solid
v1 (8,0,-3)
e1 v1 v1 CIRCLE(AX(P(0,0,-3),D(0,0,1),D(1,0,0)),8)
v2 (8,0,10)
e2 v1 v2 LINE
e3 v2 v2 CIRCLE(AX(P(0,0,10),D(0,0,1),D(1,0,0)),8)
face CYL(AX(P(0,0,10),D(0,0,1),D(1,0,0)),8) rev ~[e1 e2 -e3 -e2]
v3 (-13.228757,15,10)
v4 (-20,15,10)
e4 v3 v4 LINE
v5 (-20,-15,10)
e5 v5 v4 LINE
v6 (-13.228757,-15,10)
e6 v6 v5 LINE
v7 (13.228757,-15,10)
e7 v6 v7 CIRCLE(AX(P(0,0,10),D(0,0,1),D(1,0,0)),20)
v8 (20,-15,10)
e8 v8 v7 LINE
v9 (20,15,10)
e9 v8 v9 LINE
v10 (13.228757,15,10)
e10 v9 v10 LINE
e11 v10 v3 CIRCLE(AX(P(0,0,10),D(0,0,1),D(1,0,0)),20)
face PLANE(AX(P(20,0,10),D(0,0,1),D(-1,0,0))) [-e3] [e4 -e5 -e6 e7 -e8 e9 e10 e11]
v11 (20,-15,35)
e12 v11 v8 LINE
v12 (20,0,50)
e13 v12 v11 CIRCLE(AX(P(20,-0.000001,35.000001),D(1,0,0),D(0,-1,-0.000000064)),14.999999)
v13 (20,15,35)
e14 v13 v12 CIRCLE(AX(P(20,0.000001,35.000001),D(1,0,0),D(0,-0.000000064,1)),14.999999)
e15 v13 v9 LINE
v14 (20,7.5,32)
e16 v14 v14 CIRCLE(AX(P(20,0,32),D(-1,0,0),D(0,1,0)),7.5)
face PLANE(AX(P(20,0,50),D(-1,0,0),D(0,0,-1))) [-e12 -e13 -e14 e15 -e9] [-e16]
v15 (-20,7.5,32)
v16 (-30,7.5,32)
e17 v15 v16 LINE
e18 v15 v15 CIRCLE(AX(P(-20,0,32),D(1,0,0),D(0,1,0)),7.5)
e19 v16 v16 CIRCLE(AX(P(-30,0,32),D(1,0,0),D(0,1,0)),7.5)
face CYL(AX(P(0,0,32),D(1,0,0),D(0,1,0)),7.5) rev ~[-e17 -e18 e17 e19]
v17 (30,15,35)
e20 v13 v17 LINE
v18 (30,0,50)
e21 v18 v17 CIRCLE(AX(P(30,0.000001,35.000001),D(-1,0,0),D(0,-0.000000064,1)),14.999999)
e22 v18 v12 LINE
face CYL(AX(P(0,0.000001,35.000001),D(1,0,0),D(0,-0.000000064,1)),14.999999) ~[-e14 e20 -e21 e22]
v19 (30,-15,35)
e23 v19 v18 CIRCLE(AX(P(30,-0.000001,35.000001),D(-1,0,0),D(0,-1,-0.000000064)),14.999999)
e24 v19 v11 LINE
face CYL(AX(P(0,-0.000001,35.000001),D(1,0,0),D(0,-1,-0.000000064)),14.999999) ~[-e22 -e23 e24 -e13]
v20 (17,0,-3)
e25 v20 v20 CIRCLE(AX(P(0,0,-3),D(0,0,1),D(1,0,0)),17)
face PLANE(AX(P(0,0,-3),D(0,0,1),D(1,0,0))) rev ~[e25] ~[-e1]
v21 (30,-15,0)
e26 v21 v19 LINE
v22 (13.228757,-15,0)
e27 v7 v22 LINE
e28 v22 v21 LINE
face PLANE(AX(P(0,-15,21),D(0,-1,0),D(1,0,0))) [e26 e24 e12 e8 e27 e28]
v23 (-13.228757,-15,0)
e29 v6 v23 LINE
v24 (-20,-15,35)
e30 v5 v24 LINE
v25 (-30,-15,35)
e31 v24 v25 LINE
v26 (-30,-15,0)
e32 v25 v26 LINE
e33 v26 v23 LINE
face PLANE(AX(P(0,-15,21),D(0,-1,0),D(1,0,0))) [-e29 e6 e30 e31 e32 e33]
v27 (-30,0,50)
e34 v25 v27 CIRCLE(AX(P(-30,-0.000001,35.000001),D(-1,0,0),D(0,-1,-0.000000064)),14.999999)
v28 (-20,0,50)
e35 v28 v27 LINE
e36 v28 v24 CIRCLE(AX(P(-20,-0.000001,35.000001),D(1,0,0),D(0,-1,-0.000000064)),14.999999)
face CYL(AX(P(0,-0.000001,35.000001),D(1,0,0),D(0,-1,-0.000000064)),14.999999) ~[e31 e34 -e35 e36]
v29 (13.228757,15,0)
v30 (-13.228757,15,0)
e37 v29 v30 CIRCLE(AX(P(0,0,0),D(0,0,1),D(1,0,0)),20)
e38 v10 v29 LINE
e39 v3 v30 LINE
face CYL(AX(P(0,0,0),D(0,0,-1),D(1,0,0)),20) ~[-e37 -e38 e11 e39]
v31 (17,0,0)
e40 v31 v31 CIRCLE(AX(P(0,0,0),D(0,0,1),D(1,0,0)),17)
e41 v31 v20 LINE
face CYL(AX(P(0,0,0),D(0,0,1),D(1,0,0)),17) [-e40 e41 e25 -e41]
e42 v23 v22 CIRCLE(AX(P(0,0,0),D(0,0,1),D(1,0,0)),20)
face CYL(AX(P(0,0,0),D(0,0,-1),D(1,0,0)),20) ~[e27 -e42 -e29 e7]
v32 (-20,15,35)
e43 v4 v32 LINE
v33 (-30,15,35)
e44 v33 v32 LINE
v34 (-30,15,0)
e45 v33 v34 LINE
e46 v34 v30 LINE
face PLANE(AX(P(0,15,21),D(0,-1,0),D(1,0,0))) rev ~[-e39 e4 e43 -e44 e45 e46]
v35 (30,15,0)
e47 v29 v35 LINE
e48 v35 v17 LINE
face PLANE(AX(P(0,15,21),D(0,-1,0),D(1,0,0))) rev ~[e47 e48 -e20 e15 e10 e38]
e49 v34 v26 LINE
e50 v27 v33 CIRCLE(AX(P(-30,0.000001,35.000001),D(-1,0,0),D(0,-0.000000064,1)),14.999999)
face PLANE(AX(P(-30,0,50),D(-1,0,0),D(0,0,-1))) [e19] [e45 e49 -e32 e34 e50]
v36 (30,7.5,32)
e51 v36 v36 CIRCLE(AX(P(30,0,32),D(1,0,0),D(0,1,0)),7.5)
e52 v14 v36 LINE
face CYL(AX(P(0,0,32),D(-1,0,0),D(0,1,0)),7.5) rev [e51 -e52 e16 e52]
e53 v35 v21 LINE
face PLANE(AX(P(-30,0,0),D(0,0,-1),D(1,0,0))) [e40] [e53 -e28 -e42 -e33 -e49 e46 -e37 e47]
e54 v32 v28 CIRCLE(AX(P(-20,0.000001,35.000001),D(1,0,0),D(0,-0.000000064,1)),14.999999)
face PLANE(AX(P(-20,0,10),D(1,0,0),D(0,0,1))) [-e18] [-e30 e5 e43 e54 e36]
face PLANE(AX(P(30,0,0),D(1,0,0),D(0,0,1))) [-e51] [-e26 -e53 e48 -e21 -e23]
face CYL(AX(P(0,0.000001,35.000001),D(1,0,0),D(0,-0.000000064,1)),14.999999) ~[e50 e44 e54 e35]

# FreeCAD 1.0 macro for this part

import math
import FreeCAD as App
import Part
import Sketcher
from FreeCAD import Vector

doc = App.newDocument("Part")
body = doc.addObject("PartDesign::Body", "Body")

sketch1 = doc.addObject("Sketcher::SketchObject", "Sketch")
body.addObject(sketch1)
sketch1.AttachmentSupport = (doc.XY_Plane, [""])
sketch1.MapMode = "FlatFace"
sketch1.addGeometry(Part.Circle(Vector(0, 0, 0), Vector(0, 0, 1), 20), False)
sketch1.addGeometry(Part.Circle(Vector(0, 0, 0), Vector(0, 0, 1), 8), False)
sketch1.addConstraint(Sketcher.Constraint("Coincident", 0, 3, -1, 1))
sketch1.addConstraint(Sketcher.Constraint("Coincident", 1, 3, -1, 1))
sketch1.addConstraint(Sketcher.Constraint("Diameter", 0, 40.0))
sketch1.addConstraint(Sketcher.Constraint("Diameter", 1, 16.0))
pad1 = doc.addObject("PartDesign::Pad", "Pad")
body.addObject(pad1)
pad1.Profile = sketch1
pad1.Length = 10

sketch2 = doc.addObject("Sketcher::SketchObject", "Sketch001")
body.addObject(sketch2)
sketch2.AttachmentSupport = (doc.XY_Plane, [""])
sketch2.MapMode = "FlatFace"
sketch2.addGeometry(Part.Circle(Vector(0, 0, 0), Vector(0, 0, 1), 17), False)
sketch2.addGeometry(Part.Circle(Vector(0, 0, 0), Vector(0, 0, 1), 8), False)
sketch2.addConstraint(Sketcher.Constraint("Coincident", 0, 3, -1, 1))
sketch2.addConstraint(Sketcher.Constraint("Coincident", 1, 3, -1, 1))
sketch2.addConstraint(Sketcher.Constraint("Diameter", 0, 34.0))
sketch2.addConstraint(Sketcher.Constraint("Diameter", 1, 16.0))
pad2 = doc.addObject("PartDesign::Pad", "Pad001")
body.addObject(pad2)
pad2.Profile = sketch2
pad2.Length = 3
pad2.Reversed = True

sketch3 = doc.addObject("Sketcher::SketchObject", "Sketch002")
body.addObject(sketch3)
sketch3.AttachmentSupport = (doc.XZ_Plane, [""])
sketch3.MapMode = "FlatFace"
sketch3.addGeometry(Part.LineSegment(Vector(-30, 50, 0), Vector(-30, 0, 0)), False)
sketch3.addGeometry(Part.LineSegment(Vector(-30, 0, 0), Vector(30, 0, 0)), False)
sketch3.addGeometry(Part.LineSegment(Vector(30, 0, 0), Vector(30, 50, 0)), False)
sketch3.addGeometry(Part.LineSegment(Vector(30, 50, 0), Vector(20, 50, 0)), False)
sketch3.addGeometry(Part.LineSegment(Vector(20, 50, 0), Vector(20, 10, 0)), False)
sketch3.addGeometry(Part.LineSegment(Vector(20, 10, 0), Vector(-20, 10, 0)), False)
sketch3.addGeometry(Part.LineSegment(Vector(-20, 10, 0), Vector(-20, 50, 0)), False)
sketch3.addGeometry(Part.LineSegment(Vector(-20, 50, 0), Vector(-30, 50, 0)), False)
sketch3.addConstraint(Sketcher.Constraint("Coincident", 0, 2, 1, 1))
sketch3.addConstraint(Sketcher.Constraint("Coincident", 1, 2, 2, 1))
sketch3.addConstraint(Sketcher.Constraint("Coincident", 2, 2, 3, 1))
sketch3.addConstraint(Sketcher.Constraint("Coincident", 3, 2, 4, 1))
sketch3.addConstraint(Sketcher.Constraint("Coincident", 4, 2, 5, 1))
sketch3.addConstraint(Sketcher.Constraint("Coincident", 5, 2, 6, 1))
sketch3.addConstraint(Sketcher.Constraint("Coincident", 6, 2, 7, 1))
sketch3.addConstraint(Sketcher.Constraint("Coincident", 7, 2, 0, 1))
sketch3.addConstraint(Sketcher.Constraint("Vertical", 0))
sketch3.addConstraint(Sketcher.Constraint("Horizontal", 1))
sketch3.addConstraint(Sketcher.Constraint("Vertical", 2))
sketch3.addConstraint(Sketcher.Constraint("Horizontal", 3))
sketch3.addConstraint(Sketcher.Constraint("Vertical", 4))
sketch3.addConstraint(Sketcher.Constraint("Horizontal", 5))
sketch3.addConstraint(Sketcher.Constraint("Vertical", 6))
sketch3.addConstraint(Sketcher.Constraint("Horizontal", 7))
sketch3.addConstraint(Sketcher.Constraint("Symmetric", 0, 2, 1, 2, -1, 1))
sketch3.addConstraint(Sketcher.Constraint("Symmetric", 3, 2, 6, 2, -2))
sketch3.addConstraint(Sketcher.Constraint("Equal", 5, 4))
sketch3.addConstraint(Sketcher.Constraint("DistanceX", 1, 1, 1, 2, 60.0))
sketch3.addConstraint(Sketcher.Constraint("DistanceX", 3, 2, 3, 1, 10.0))
sketch3.addConstraint(Sketcher.Constraint("DistanceY", 0, 2, 0, 1, 50.0))
pad3 = doc.addObject("PartDesign::Pad", "Pad002")
body.addObject(pad3)
pad3.Profile = sketch3
pad3.Length = 30
pad3.Midplane = True

sketch4 = doc.addObject("Sketcher::SketchObject", "Sketch003")
body.addObject(sketch4)
sketch4.AttachmentSupport = (doc.XY_Plane, [""])
sketch4.MapMode = "FlatFace"
sketch4.AttachmentOffset = App.Placement(Vector(0, 0, 10), App.Rotation())
sketch4.addGeometry(Part.Circle(Vector(0, 0, 0), Vector(0, 0, 1), 8), False)
sketch4.addConstraint(Sketcher.Constraint("Coincident", 0, 3, -1, 1))
sketch4.addConstraint(Sketcher.Constraint("Diameter", 0, 16.0))
pocket1 = doc.addObject("PartDesign::Pocket", "Pocket")
body.addObject(pocket1)
pocket1.Profile = sketch4
pocket1.Length = 25

sketch5 = doc.addObject("Sketcher::SketchObject", "Sketch004")
body.addObject(sketch5)
sketch5.AttachmentSupport = (doc.YZ_Plane, [""])
sketch5.MapMode = "FlatFace"
sketch5.addGeometry(Part.Circle(Vector(0, 32, 0), Vector(0, 0, 1), 8), False)
sketch5.addGeometry(Part.ArcOfCircle(Part.Circle(Vector(0, 35, 0), Vector(0, 0, 1), 15), math.radians(90), math.radians(180)), False)
sketch5.addGeometry(Part.LineSegment(Vector(0, 50, 0), Vector(-15, 50, 0)), False)
sketch5.addGeometry(Part.LineSegment(Vector(-15, 50, 0), Vector(-15, 35, 0)), False)
sketch5.addGeometry(Part.ArcOfCircle(Part.Circle(Vector(0, 35, 0), Vector(0, 0, 1), 15), math.radians(0), math.radians(90)), False)
sketch5.addGeometry(Part.LineSegment(Vector(15, 35, 0), Vector(15, 50, 0)), False)
sketch5.addGeometry(Part.LineSegment(Vector(15, 50, 0), Vector(0, 50, 0)), False)
sketch5.addConstraint(Sketcher.Constraint("Tangent", 1, 1, 2, 1))
sketch5.addConstraint(Sketcher.Constraint("Coincident", 2, 2, 3, 1))
sketch5.addConstraint(Sketcher.Constraint("Tangent", 3, 2, 1, 2))
sketch5.addConstraint(Sketcher.Constraint("Tangent", 4, 1, 5, 1))
sketch5.addConstraint(Sketcher.Constraint("Coincident", 5, 2, 6, 1))
sketch5.addConstraint(Sketcher.Constraint("Tangent", 6, 2, 4, 2))
sketch5.addConstraint(Sketcher.Constraint("Horizontal", 2))
sketch5.addConstraint(Sketcher.Constraint("Vertical", 3))
sketch5.addConstraint(Sketcher.Constraint("Vertical", 5))
sketch5.addConstraint(Sketcher.Constraint("Horizontal", 6))
sketch5.addConstraint(Sketcher.Constraint("Coincident", 4, 3, 1, 3))
sketch5.addConstraint(Sketcher.Constraint("Equal", 1, 4))
sketch5.addConstraint(Sketcher.Constraint("PointOnObject", 0, 3, -2))
sketch5.addConstraint(Sketcher.Constraint("PointOnObject", 1, 3, -2))
sketch5.addConstraint(Sketcher.Constraint("Diameter", 0, 15.0))
sketch5.addConstraint(Sketcher.Constraint("Radius", 1, 14.999999))
sketch5.addConstraint(Sketcher.Constraint("DistanceY", -1, 1, 0, 3, 32.0))
sketch5.addConstraint(Sketcher.Constraint("DistanceY", -1, 1, 1, 3, 35.000001))
pocket2 = doc.addObject("PartDesign::Pocket", "Pocket001")
body.addObject(pocket2)
pocket2.Profile = sketch5
pocket2.Length = 60
pocket2.Midplane = True

doc.recompute()
